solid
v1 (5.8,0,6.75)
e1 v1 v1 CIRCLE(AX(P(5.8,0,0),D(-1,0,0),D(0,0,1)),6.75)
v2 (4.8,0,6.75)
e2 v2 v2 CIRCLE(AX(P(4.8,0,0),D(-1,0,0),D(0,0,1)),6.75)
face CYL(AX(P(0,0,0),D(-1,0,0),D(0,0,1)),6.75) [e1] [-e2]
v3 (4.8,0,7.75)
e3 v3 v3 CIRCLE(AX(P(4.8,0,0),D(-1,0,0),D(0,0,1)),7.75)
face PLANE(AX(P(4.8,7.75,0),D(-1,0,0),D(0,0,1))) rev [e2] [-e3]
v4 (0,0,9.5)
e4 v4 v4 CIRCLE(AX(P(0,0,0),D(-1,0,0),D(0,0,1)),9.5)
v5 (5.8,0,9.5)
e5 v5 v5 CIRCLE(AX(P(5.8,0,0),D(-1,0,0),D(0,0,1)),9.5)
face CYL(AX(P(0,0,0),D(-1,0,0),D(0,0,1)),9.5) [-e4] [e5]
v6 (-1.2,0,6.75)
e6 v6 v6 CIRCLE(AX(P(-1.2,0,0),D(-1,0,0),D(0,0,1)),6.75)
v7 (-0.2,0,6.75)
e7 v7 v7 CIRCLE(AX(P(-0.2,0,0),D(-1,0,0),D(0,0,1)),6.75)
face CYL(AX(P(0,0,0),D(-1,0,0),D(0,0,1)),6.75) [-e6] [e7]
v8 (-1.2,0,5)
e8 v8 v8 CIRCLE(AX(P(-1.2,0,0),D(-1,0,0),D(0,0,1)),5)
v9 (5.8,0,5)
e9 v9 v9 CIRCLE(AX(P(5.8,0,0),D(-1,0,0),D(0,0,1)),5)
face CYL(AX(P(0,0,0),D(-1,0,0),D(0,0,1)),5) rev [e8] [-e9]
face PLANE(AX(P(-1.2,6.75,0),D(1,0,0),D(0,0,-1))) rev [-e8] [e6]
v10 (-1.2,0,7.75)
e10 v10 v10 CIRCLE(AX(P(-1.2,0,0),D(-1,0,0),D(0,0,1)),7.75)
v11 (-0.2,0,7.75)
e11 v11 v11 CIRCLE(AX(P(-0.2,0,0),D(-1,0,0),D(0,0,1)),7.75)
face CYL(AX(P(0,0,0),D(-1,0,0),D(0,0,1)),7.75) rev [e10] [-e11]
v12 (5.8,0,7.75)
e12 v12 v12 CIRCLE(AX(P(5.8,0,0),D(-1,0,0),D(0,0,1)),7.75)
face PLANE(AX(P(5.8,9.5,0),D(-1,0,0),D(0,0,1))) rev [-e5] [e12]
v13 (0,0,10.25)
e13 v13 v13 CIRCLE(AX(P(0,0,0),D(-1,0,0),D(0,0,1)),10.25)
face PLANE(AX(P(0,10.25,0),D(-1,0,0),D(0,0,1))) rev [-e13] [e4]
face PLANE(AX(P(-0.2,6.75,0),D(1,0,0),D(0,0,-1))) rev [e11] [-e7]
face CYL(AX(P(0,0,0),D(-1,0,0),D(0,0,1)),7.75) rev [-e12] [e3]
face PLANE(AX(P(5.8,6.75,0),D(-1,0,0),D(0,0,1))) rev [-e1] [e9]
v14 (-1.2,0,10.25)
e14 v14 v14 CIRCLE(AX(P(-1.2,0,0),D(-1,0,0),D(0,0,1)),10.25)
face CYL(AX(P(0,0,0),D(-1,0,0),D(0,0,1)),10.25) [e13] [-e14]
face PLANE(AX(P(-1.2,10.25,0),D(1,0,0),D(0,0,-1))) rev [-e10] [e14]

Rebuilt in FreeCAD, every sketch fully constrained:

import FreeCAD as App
import Part
import Sketcher
from FreeCAD import Vector
Q = App.Units.Quantity


def add_polygon(sketch, points):
    """Adds a closed chain of lines whose ends are joined by coincident constraints."""
    first, n = sketch.GeometryCount, len(points)
    for a, b in zip(points, points[1:] + points[:1]):
        sketch.addGeometry(Part.LineSegment(App.Vector(*a, 0), App.Vector(*b, 0)), False)
    for i in range(n):
        sketch.addConstraint(Sketcher.Constraint("Coincident", first + i, 2, first + (i + 1) % n, 1))

doc = App.newDocument("Part")
params = doc.addObject("Spreadsheet::Sheet", "Params")
for row, (alias, value) in enumerate([
    ("sketch1_width", "1 mm"),
    ("sketch1_width2", "7 mm"),
    ("sketch1_width3", "1.2 mm"),
    ("sketch1_height", "2.5 mm"),
    ("sketch1_height2", "1.75 mm"),
    ("revolution_angle", "360 deg"),
], start=1):
    params.set(f"A{row}", alias)
    params.set(f"B{row}", "=" + value)
    params.setAlias(f"B{row}", alias)

body = doc.addObject("PartDesign::Body", "Body")

# Sketch on XY plane
sketch1 = body.newObject("Sketcher::SketchObject", "Sketch")
sketch1.AttachmentSupport = (doc.getObject("XY_Plane"), [""])
sketch1.MapMode = "FlatFace"
add_polygon(sketch1, [(0, 10.25), (-1.2, 10.25), (-1.2, 7.75), (-0.2, 7.75), (-0.2, 6.75), (-1.2, 6.75), (-1.2, 5), (5.8, 5), (5.8, 6.75), (4.8, 6.75), (4.8, 7.75), (5.8, 7.75), (5.8, 9.5), (0, 9.5)])  # lines 0-13
sketch1.addConstraint([
    Sketcher.Constraint("Horizontal", 0),
    Sketcher.Constraint("Vertical", 1),
    Sketcher.Constraint("Horizontal", 2),
    Sketcher.Constraint("Vertical", 3),
    Sketcher.Constraint("Horizontal", 4),
    Sketcher.Constraint("Vertical", 5),
    Sketcher.Constraint("Horizontal", 6),
    Sketcher.Constraint("Vertical", 7),
    Sketcher.Constraint("Horizontal", 8),
    Sketcher.Constraint("Vertical", 9),
    Sketcher.Constraint("Horizontal", 10),
    Sketcher.Constraint("Vertical", 11),
    Sketcher.Constraint("Horizontal", 12),
    Sketcher.Constraint("Vertical", 13),
    Sketcher.Constraint("PointOnObject", 12, 2, -2),
    Sketcher.Constraint("Horizontal", 4, 2, 7, 2),
    Sketcher.Constraint("Horizontal", 2, 2, 9, 2),
    Sketcher.Constraint("Vertical", 1, 2, 4, 2),
    Sketcher.Constraint("Vertical", 7, 2, 10, 2),
    Sketcher.Constraint("Equal", 4, 8),
    Sketcher.Constraint("Equal", 10, 3),
    Sketcher.Constraint("Equal", 7, 11),
    Sketcher.Constraint("DistanceX", 2, 1, 2, 2, Q("1 mm")),
    Sketcher.Constraint("DistanceX", 6, 1, 6, 2, Q("7 mm")),
    Sketcher.Constraint("DistanceX", 0, 2, 0, 1, Q("1.2 mm")),
    Sketcher.Constraint("DistanceY", 1, 2, 1, 1, Q("2.5 mm")),
    Sketcher.Constraint("DistanceY", -1, 1, 5, 2, Q("5 mm")),
    Sketcher.Constraint("DistanceY", 5, 2, 5, 1, Q("1.75 mm")),
])
sketch1.setExpression("Constraints[36]", "Params.sketch1_width")
sketch1.setExpression("Constraints[37]", "Params.sketch1_width2")
sketch1.setExpression("Constraints[38]", "Params.sketch1_width3")
sketch1.setExpression("Constraints[39]", "Params.sketch1_height")
sketch1.setExpression("Constraints[41]", "Params.sketch1_height2")
revolution = body.newObject("PartDesign::Revolution", "Revolution")
revolution.Profile = sketch1
revolution.ReferenceAxis = (sketch1, ["H_Axis"])
revolution.setExpression("Angle", "Params.revolution_angle")

doc.recompute()
